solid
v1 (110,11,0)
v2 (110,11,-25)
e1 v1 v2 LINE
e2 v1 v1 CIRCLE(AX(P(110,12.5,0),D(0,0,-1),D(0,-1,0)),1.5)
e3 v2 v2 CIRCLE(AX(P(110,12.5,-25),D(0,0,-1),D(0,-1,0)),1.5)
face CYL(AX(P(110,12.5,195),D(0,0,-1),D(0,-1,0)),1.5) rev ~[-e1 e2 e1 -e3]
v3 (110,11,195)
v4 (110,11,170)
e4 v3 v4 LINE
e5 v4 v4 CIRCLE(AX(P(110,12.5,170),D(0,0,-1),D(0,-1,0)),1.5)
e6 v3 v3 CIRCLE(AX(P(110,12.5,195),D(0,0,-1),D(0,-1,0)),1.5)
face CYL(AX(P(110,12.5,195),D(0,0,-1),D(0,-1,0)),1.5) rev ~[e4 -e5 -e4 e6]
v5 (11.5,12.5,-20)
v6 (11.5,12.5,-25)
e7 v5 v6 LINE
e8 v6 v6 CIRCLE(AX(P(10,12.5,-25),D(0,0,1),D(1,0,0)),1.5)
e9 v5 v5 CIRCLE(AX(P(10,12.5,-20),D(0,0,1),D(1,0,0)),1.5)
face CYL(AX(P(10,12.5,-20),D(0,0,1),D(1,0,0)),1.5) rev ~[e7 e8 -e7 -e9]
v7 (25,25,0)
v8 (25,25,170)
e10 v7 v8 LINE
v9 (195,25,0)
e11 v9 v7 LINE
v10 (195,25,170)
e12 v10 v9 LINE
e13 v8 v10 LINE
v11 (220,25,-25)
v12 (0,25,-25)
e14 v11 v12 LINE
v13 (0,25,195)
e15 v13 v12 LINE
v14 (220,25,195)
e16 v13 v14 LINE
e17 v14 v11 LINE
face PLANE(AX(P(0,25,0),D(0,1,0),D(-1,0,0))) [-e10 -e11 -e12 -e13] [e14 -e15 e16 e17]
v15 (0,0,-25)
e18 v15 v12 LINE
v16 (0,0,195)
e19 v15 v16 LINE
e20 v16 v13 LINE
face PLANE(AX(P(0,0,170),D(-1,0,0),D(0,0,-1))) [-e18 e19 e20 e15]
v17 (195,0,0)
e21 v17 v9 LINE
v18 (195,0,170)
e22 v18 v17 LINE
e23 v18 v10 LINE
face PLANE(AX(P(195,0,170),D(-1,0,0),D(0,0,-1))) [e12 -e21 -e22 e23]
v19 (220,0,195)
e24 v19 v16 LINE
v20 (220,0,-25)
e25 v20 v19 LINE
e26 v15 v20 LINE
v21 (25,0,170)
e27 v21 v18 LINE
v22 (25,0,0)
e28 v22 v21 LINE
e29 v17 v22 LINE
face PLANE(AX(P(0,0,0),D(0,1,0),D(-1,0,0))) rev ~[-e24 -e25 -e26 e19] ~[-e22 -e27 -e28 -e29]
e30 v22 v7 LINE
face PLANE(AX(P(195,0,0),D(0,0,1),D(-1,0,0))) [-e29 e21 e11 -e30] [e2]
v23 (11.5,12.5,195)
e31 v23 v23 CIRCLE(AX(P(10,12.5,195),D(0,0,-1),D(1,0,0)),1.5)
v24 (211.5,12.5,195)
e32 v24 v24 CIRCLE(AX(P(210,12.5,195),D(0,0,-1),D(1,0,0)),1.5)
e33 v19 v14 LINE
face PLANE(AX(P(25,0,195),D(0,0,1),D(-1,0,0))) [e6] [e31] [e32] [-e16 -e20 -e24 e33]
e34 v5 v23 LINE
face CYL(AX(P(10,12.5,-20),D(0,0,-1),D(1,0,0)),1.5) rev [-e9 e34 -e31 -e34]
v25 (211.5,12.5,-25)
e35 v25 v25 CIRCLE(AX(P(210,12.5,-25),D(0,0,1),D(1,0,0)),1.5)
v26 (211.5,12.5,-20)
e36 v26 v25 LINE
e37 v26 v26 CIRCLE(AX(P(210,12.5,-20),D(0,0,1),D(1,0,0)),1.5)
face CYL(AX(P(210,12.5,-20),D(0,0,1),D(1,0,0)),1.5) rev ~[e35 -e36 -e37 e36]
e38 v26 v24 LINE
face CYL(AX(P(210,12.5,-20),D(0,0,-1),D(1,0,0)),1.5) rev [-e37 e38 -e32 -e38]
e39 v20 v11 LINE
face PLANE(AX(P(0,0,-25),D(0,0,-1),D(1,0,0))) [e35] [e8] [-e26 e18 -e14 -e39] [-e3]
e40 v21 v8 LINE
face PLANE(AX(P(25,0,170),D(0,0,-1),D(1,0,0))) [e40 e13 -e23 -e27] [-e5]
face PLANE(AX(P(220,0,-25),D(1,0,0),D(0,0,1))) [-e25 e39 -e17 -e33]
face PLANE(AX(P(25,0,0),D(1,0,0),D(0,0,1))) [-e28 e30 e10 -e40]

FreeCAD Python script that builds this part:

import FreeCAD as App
import Part
import Sketcher
from FreeCAD import Vector
Q = App.Units.Quantity


def add_polygon(sketch, points):
    """Adds a closed chain of lines whose ends are joined by coincident constraints."""
    first, n = sketch.GeometryCount, len(points)
    for a, b in zip(points, points[1:] + points[:1]):
        sketch.addGeometry(Part.LineSegment(App.Vector(*a, 0), App.Vector(*b, 0)), False)
    for i in range(n):
        sketch.addConstraint(Sketcher.Constraint("Coincident", first + i, 2, first + (i + 1) % n, 1))

doc = App.newDocument("Part")
params = doc.addObject("Spreadsheet::Sheet", "Params")
for row, (alias, value) in enumerate([
    ("sketch1_width", "170 mm"),
    ("sketch1_width2", "220 mm"),
    ("pad1_length", "25 mm"),
    ("sketch2_diameter", "3 mm"),
    ("sketch3_diameter", "3 mm"),
    ("hole_diameter", "3 mm"),
], start=1):
    params.set(f"A{row}", alias)
    params.set(f"B{row}", "=" + value)
    params.setAlias(f"B{row}", alias)

body = doc.addObject("PartDesign::Body", "Body")

# Sketch on XZ plane
sketch1 = doc.addObject("Sketcher::SketchObject", "Sketch")
body.addObject(sketch1)
sketch1.AttachmentSupport = (doc.XZ_Plane, [""])
sketch1.MapMode = "FlatFace"
add_polygon(sketch1, [(0, -25), (0, 195), (220, 195), (220, -25)])  # lines 0-3
add_polygon(sketch1, [(195, 170), (25, 170), (25, 0), (195, 0)])  # lines 4-7
sketch1.addConstraint([
    Sketcher.Constraint("Vertical", 0),
    Sketcher.Constraint("Horizontal", 1),
    Sketcher.Constraint("Vertical", 2),
    Sketcher.Constraint("Horizontal", 3),
    Sketcher.Constraint("Horizontal", 4),
    Sketcher.Constraint("Vertical", 5),
    Sketcher.Constraint("Horizontal", 6),
    Sketcher.Constraint("Vertical", 7),
    Sketcher.Constraint("PointOnObject", 0, 2, -2),
    Sketcher.Constraint("PointOnObject", 5, 2, -1),
    Sketcher.Constraint("Equal", 3, 0),
    Sketcher.Constraint("Equal", 6, 5),
    Sketcher.Constraint("DistanceX", 4, 2, 4, 1, Q("170 mm")),
    Sketcher.Constraint("DistanceX", 1, 1, 1, 2, Q("220 mm")),
    Sketcher.Constraint("DistanceY", -1, 1, 0, 2, Q("195 mm")),
    Sketcher.Constraint("DistanceX", -1, 1, 4, 2, Q("25 mm")),
])
sketch1.setExpression("Constraints[20]", "Params.sketch1_width")
sketch1.setExpression("Constraints[21]", "Params.sketch1_width2")
pad1 = doc.addObject("PartDesign::Pad", "Pad")
body.addObject(pad1)
pad1.Profile = sketch1
pad1.setExpression("Length", "Params.pad1_length")
pad1.Reversed = True

# Sketch on XY plane
sketch2 = doc.addObject("Sketcher::SketchObject", "Sketch001")
body.addObject(sketch2)
sketch2.AttachmentSupport = (doc.XY_Plane, [""])
sketch2.MapMode = "FlatFace"
sketch2.AttachmentOffset = App.Placement(Vector(0, 0, -20), App.Rotation())
sketch2.addGeometry([
    Part.Circle(Vector(10, 12.5, 0), Vector(0, 0, 1), 1.5),
    Part.Circle(Vector(210, 12.5, 0), Vector(0, 0, 1), 1.5),
], False)
sketch2.addConstraint([
    Sketcher.Constraint("Equal", 0, 1),
    Sketcher.Constraint("Horizontal", 0, 3, 1, 3),
    Sketcher.Constraint("Diameter", 0, Q("3 mm")),
    Sketcher.Constraint("DistanceX", -1, 1, 0, 3, Q("10 mm")),
    Sketcher.Constraint("DistanceX", -1, 1, 1, 3, Q("210 mm")),
    Sketcher.Constraint("DistanceY", -1, 1, 0, 3, Q("12.5 mm")),
])
sketch2.setExpression("Constraints[2]", "Params.sketch2_diameter")
pocket1 = doc.addObject("PartDesign::Pocket", "Pocket")
body.addObject(pocket1)
pocket1.Profile = sketch2
pocket1.Type = "ThroughAll"
pocket1.Midplane = True

# Sketch on XY plane
sketch3 = doc.addObject("Sketcher::SketchObject", "Sketch002")
body.addObject(sketch3)
sketch3.AttachmentSupport = (doc.XY_Plane, [""])
sketch3.MapMode = "FlatFace"
sketch3.AttachmentOffset = App.Placement(Vector(0, 0, 195), App.Rotation())
sketch3.addGeometry(Part.Circle(Vector(110, 12.5, 0), Vector(0, 0, 1), 1.5), False)
sketch3.addConstraint([
    Sketcher.Constraint("Diameter", 0, Q("3 mm")),
    Sketcher.Constraint("DistanceX", -1, 1, 0, 3, Q("110 mm")),
    Sketcher.Constraint("DistanceY", -1, 1, 0, 3, Q("12.5 mm")),
])
sketch3.setExpression("Constraints[0]", "Params.sketch3_diameter")
doc.recompute()
hole = doc.addObject("PartDesign::Hole", "Hole")
body.addObject(hole)
hole.Profile = sketch3
hole.ThreadType = "None"
hole.setExpression("Diameter", "Params.hole_diameter")
hole.DepthType = "ThroughAll"

doc.recompute()
